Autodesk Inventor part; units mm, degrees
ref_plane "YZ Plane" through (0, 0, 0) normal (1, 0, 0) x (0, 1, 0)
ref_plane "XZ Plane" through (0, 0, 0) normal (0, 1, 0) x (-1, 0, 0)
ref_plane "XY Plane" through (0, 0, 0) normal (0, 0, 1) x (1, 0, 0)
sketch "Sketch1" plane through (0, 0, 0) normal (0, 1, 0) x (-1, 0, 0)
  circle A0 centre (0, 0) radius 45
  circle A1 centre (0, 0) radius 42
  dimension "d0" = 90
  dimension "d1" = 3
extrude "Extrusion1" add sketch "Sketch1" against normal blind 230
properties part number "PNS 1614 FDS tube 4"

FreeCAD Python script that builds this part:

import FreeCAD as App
import Part
import Sketcher

V = App.Vector
Q = App.Units.Quantity

doc = App.newDocument("Part")
body = doc.addObject("PartDesign::Body", "Body")

# Sketch on XZ plane
sketch1 = body.newObject("Sketcher::SketchObject", "Sketch")
sketch1.AttachmentSupport = (doc.getObject("XZ_Plane"), [""])
sketch1.MapMode = "FlatFace"
sketch1.addGeometry([
    Part.Circle(V(0, 0, 0), V(0, 0, 1), 45),
    Part.Circle(V(0, 0, 0), V(0, 0, 1), 42),
], False)
sketch1.addConstraint([
    Sketcher.Constraint("Coincident", 0, 3, -1, 1),
    Sketcher.Constraint("Coincident", 1, 3, -1, 1),
    Sketcher.Constraint("Diameter", 0, Q("90 mm")),
    Sketcher.Constraint("Diameter", 1, Q("84 mm")),
])
pad1 = body.newObject("PartDesign::Pad", "Pad")
pad1.Profile = sketch1
pad1.Length = 230

doc.recompute()
